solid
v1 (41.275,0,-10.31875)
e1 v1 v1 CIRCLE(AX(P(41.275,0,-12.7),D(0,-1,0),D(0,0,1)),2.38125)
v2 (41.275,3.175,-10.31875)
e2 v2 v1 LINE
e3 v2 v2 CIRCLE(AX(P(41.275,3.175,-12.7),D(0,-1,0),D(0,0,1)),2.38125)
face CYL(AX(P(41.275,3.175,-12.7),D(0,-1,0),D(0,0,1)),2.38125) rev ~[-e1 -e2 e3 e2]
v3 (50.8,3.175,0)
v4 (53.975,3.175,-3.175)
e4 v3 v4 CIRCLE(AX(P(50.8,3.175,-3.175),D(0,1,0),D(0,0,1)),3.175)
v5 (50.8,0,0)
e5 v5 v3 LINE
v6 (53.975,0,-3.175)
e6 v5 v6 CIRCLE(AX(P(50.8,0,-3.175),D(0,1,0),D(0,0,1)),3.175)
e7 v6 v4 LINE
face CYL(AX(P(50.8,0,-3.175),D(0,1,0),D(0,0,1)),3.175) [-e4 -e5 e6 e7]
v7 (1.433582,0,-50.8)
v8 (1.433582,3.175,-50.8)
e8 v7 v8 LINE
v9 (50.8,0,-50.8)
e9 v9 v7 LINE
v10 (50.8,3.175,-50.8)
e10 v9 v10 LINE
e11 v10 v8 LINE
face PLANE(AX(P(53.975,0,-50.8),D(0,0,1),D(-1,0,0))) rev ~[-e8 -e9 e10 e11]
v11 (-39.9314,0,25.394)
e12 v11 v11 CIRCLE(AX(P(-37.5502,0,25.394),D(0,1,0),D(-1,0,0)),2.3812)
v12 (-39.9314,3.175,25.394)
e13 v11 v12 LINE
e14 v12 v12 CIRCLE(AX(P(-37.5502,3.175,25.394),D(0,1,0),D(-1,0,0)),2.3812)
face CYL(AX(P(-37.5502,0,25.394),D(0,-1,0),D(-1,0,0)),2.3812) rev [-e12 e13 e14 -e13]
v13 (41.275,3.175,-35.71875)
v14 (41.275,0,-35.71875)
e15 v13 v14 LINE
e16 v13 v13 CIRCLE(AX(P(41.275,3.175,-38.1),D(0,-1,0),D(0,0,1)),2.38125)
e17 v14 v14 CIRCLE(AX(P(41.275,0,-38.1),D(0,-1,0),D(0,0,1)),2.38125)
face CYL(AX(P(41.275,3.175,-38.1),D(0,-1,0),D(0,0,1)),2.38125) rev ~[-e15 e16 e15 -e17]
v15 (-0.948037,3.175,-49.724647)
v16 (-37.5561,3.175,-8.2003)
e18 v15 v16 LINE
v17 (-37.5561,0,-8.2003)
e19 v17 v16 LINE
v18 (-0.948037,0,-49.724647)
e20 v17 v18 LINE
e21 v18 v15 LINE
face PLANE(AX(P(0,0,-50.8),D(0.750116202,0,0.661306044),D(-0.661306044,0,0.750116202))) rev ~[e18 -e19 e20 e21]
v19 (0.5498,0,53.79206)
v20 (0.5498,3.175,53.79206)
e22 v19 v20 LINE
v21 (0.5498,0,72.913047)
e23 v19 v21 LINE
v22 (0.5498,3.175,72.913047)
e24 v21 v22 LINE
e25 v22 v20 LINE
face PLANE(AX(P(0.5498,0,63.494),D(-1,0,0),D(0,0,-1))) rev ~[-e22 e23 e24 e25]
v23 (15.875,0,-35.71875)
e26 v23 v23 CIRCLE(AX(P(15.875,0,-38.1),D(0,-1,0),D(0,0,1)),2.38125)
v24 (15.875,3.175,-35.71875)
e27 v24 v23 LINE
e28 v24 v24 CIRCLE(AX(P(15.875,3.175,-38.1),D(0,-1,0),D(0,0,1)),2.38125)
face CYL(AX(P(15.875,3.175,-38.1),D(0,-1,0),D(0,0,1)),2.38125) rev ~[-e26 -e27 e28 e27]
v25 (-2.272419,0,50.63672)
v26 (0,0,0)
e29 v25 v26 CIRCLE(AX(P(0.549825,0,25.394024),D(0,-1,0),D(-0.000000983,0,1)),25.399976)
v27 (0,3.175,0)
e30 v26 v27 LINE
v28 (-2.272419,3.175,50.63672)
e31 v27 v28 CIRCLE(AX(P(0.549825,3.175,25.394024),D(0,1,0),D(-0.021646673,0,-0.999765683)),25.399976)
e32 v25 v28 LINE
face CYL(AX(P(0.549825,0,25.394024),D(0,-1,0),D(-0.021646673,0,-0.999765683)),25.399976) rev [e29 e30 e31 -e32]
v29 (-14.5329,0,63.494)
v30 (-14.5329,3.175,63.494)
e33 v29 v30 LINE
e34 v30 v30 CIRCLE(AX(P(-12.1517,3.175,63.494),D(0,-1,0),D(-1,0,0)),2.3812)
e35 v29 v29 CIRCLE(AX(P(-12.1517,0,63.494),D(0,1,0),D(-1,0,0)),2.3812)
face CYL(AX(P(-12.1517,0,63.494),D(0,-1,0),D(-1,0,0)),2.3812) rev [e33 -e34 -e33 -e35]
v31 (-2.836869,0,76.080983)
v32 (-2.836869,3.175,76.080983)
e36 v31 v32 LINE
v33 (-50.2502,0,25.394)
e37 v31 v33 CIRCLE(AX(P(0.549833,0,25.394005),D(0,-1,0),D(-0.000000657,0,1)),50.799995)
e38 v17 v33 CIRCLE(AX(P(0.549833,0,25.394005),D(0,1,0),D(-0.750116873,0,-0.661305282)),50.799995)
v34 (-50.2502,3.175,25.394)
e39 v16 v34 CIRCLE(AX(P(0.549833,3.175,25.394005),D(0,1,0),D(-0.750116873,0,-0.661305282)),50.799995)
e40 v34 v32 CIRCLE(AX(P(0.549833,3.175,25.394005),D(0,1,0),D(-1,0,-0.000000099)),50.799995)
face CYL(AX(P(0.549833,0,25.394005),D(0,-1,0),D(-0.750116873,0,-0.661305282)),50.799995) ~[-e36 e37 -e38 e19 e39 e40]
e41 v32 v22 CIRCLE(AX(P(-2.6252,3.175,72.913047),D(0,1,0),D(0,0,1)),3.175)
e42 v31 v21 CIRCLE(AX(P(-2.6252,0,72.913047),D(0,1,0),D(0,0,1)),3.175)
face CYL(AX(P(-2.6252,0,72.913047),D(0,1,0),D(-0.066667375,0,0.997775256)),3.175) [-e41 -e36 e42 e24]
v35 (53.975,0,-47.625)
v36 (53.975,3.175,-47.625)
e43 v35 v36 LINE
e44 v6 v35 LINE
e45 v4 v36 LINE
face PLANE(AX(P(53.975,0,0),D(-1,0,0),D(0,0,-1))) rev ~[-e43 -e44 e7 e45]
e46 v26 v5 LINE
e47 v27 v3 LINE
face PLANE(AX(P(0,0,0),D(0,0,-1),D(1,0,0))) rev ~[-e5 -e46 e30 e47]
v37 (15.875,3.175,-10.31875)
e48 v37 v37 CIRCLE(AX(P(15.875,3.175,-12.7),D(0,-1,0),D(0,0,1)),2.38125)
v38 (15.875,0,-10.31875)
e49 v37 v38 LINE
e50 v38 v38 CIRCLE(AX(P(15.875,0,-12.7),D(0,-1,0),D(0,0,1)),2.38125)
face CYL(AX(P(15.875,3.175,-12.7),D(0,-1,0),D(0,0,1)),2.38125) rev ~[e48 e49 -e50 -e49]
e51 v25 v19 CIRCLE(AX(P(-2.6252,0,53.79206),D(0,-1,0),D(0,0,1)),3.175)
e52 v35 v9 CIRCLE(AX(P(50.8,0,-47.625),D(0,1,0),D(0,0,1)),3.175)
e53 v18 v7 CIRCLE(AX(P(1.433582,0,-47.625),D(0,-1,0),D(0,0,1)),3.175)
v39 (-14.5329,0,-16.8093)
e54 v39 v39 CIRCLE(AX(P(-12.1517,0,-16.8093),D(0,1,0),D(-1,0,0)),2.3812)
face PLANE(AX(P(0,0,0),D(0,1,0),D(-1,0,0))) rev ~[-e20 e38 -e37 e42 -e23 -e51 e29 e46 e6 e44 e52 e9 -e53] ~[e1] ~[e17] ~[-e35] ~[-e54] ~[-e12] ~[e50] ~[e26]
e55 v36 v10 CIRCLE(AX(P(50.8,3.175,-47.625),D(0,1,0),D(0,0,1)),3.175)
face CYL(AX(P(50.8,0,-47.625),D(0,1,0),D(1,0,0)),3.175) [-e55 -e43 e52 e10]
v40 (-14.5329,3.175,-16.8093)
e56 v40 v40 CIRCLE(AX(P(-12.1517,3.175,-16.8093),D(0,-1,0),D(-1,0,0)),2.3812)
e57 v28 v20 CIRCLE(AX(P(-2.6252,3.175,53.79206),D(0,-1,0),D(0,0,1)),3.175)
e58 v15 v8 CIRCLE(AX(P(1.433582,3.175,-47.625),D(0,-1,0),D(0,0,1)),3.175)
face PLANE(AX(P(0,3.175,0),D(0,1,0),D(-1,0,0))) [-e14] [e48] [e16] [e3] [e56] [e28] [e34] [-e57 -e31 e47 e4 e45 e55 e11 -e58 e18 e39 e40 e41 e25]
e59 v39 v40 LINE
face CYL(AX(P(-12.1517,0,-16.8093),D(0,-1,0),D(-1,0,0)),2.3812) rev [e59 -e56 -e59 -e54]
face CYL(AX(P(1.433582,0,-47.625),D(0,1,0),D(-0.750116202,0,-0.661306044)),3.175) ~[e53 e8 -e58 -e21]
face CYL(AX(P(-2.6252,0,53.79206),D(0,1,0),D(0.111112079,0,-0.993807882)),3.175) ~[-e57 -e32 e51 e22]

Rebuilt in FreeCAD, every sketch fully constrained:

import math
import FreeCAD as App
import Part
import Sketcher

V = App.Vector
Q = App.Units.Quantity


def edges_at(feature, points):
    """Names of the edges that pass closest to the given points."""
    edges = feature.Shape.Edges
    near = lambda p: min(range(len(edges)), key=lambda i: edges[i].distToShape(Part.Vertex(*p))[0])
    return sorted({f"Edge{near(p) + 1}" for p in points})

doc = App.newDocument("Part")
body = doc.addObject("PartDesign::Body", "Body")

# Sketch on XZ plane
sketch1 = doc.addObject("Sketcher::SketchObject", "Sketch")
body.addObject(sketch1)
sketch1.AttachmentSupport = (doc.XZ_Plane, [""])
sketch1.MapMode = "FlatFace"
sketch1.addGeometry(Part.LineSegment(V(0, 0, 0), V(54, 0, 0)), False)
sketch1.addGeometry(Part.LineSegment(V(54, 0, 0), V(54, -51, 0)), False)
sketch1.addGeometry(Part.LineSegment(V(54, -51, 0), V(0, -51, 0)), False)
sketch1.addGeometry(Part.LineSegment(V(0, -51, 0), V(-38, -8, 0)), False)
sketch1.addGeometry(Part.ArcOfCircle(Part.Circle(V(1, 25, 0), V(0, 0, 1), 51), math.radians(180), math.radians(221)), False)
sketch1.addGeometry(Part.ArcOfCircle(Part.Circle(V(1, 25, 0), V(0, 0, 1), 51), math.radians(90), math.radians(180)), False)
sketch1.addGeometry(Part.LineSegment(V(1, 76, 0), V(1, 51, 0)), False)
sketch1.addGeometry(Part.ArcOfCircle(Part.Circle(V(1, 25, 0), V(0, 0, 1), 25), math.radians(90), math.radians(269)), False)
sketch1.addConstraint(Sketcher.Constraint("Coincident", 0, 2, 1, 1))
sketch1.addConstraint(Sketcher.Constraint("Coincident", 1, 2, 2, 1))
sketch1.addConstraint(Sketcher.Constraint("Coincident", 2, 2, 3, 1))
sketch1.addConstraint(Sketcher.Constraint("Tangent", 3, 2, 4, 2))
sketch1.addConstraint(Sketcher.Constraint("Tangent", 4, 1, 5, 2))
sketch1.addConstraint(Sketcher.Constraint("Coincident", 5, 1, 6, 1))
sketch1.addConstraint(Sketcher.Constraint("Coincident", 6, 2, 7, 1))
sketch1.addConstraint(Sketcher.Constraint("Coincident", 7, 2, 0, 1))
sketch1.addConstraint(Sketcher.Constraint("Horizontal", 0))
sketch1.addConstraint(Sketcher.Constraint("Vertical", 1))
sketch1.addConstraint(Sketcher.Constraint("Horizontal", 2))
sketch1.addConstraint(Sketcher.Constraint("Vertical", 6))
sketch1.addConstraint(Sketcher.Constraint("Coincident", 7, 2, -1, 1))
sketch1.addConstraint(Sketcher.Constraint("Coincident", 7, 3, 4, 3))
sketch1.addConstraint(Sketcher.Constraint("Equal", 4, 5))
sketch1.addConstraint(Sketcher.Constraint("PointOnObject", 2, 2, -2))
sketch1.addConstraint(Sketcher.Constraint("Horizontal", 7, 3, 4, 1))
sketch1.addConstraint(Sketcher.Constraint("Vertical", 7, 3, 5, 1))
sketch1.addConstraint(Sketcher.Constraint("Radius", 4, Q("2 in")))
sketch1.addConstraint(Sketcher.Constraint("Radius", 7, Q("1 in")))
sketch1.addConstraint(Sketcher.Constraint("DistanceY", 1, 2, 1, 1, Q("2 in")))
sketch1.addConstraint(Sketcher.Constraint("DistanceX", 0, 1, 0, 2, Q("2.125 in")))
sketch1.addConstraint(Sketcher.Constraint("Angle", 3, Q("131.3996 deg")))
pad1 = doc.addObject("PartDesign::Pad", "Pad")
body.addObject(pad1)
pad1.Profile = sketch1
pad1.Length = Q("0.125 in")
pad1.Reversed = True
doc.recompute()

fillet = doc.addObject("PartDesign::Fillet", "Fillet")
body.addObject(fillet)
fillet.Base = (pad1, edges_at(pad1, [
    (0, 1.587, -50.8),
    (53.975, 1.587, -50.8),
    (53.975, 1.587, 0),
    (0.55, 1.587, 50.794),
    (0.55, 1.587, 76.194),
]))
fillet.Radius = Q("0.125 in")

# Sketch on XZ plane
sketch2 = doc.addObject("Sketcher::SketchObject", "Sketch001")
body.addObject(sketch2)
sketch2.AttachmentSupport = (doc.XZ_Plane, [""])
sketch2.MapMode = "FlatFace"
sketch2.AttachmentOffset = App.Placement(V(0, 0, -0.125 * 25.4), App.Rotation())
sketch2.addGeometry(Part.Circle(V(15.9, -38.1, 0), V(0, 0, 1), 2.4), False)
sketch2.addGeometry(Part.Circle(V(15.9, -12.7, 0), V(0, 0, 1), 2.4), False)
sketch2.addGeometry(Part.Circle(V(41.3, -12.7, 0), V(0, 0, 1), 2.4), False)
sketch2.addGeometry(Part.Circle(V(41.3, -38.1, 0), V(0, 0, 1), 2.4), False)
sketch2.addConstraint(Sketcher.Constraint("Equal", 0, 1))
sketch2.addConstraint(Sketcher.Constraint("Equal", 1, 2))
sketch2.addConstraint(Sketcher.Constraint("Equal", 2, 3))
sketch2.addConstraint(Sketcher.Constraint("Horizontal", 1, 3, 2, 3))
sketch2.addConstraint(Sketcher.Constraint("Horizontal", 0, 3, 3, 3))
sketch2.addConstraint(Sketcher.Constraint("Vertical", 0, 3, 1, 3))
sketch2.addConstraint(Sketcher.Constraint("Vertical", 2, 3, 3, 3))
sketch2.addConstraint(Sketcher.Constraint("Diameter", 0, Q("0.1875 in")))
sketch2.addConstraint(Sketcher.Constraint("DistanceY", 0, 3, 1, 3, Q("1 in")))
sketch2.addConstraint(Sketcher.Constraint("DistanceX", 1, 3, 2, 3, Q("1 in")))
sketch2.addConstraint(Sketcher.Constraint("DistanceY", 0, 3, -1, 1, Q("1.5 in")))
sketch2.addConstraint(Sketcher.Constraint("DistanceX", -1, 1, 0, 3, Q("0.625 in")))
doc.recompute()
hole = doc.addObject("PartDesign::Hole", "Hole")
body.addObject(hole)
hole.Profile = sketch2
hole.ThreadType = "None"
hole.Diameter = Q("0.1875 in")
hole.DepthType = "ThroughAll"
hole.Reversed = True

# Sketch on XZ plane
sketch3 = doc.addObject("Sketcher::SketchObject", "Sketch002")
body.addObject(sketch3)
sketch3.AttachmentSupport = (doc.XZ_Plane, [""])
sketch3.MapMode = "FlatFace"
sketch3.addGeometry(Part.Circle(V(-37.6, 25.4, 0), V(0, 0, 1), 2.4), False)
sketch3.addGeometry(Part.Circle(V(-12.2, -16.8, 0), V(0, 0, 1), 2.4), False)
sketch3.addGeometry(Part.Circle(V(-12.2, 63.5, 0), V(0, 0, 1), 2.4), False)
sketch3.addConstraint(Sketcher.Constraint("Equal", 0, 1))
sketch3.addConstraint(Sketcher.Constraint("Equal", 1, 2))
sketch3.addConstraint(Sketcher.Constraint("Vertical", 1, 3, 2, 3))
sketch3.addConstraint(Sketcher.Constraint("Diameter", 0, Q("0.1875 in")))
sketch3.addConstraint(Sketcher.Constraint("DistanceY", 0, 3, 2, 3, Q("1.5 in")))
sketch3.addConstraint(Sketcher.Constraint("DistanceX", 0, 3, -1, 1, Q("37.5502 mm")))
sketch3.addConstraint(Sketcher.Constraint("DistanceY", -1, 1, 0, 3, Q("25.394 mm")))
sketch3.addConstraint(Sketcher.Constraint("DistanceX", 1, 3, -1, 1, Q("12.1517 mm")))
sketch3.addConstraint(Sketcher.Constraint("DistanceY", 1, 3, -1, 1, Q("16.8093 mm")))
pocket1 = doc.addObject("PartDesign::Pocket", "Pocket")
body.addObject(pocket1)
pocket1.Profile = sketch3
pocket1.Length = Q("0.125 in")

doc.recompute()
